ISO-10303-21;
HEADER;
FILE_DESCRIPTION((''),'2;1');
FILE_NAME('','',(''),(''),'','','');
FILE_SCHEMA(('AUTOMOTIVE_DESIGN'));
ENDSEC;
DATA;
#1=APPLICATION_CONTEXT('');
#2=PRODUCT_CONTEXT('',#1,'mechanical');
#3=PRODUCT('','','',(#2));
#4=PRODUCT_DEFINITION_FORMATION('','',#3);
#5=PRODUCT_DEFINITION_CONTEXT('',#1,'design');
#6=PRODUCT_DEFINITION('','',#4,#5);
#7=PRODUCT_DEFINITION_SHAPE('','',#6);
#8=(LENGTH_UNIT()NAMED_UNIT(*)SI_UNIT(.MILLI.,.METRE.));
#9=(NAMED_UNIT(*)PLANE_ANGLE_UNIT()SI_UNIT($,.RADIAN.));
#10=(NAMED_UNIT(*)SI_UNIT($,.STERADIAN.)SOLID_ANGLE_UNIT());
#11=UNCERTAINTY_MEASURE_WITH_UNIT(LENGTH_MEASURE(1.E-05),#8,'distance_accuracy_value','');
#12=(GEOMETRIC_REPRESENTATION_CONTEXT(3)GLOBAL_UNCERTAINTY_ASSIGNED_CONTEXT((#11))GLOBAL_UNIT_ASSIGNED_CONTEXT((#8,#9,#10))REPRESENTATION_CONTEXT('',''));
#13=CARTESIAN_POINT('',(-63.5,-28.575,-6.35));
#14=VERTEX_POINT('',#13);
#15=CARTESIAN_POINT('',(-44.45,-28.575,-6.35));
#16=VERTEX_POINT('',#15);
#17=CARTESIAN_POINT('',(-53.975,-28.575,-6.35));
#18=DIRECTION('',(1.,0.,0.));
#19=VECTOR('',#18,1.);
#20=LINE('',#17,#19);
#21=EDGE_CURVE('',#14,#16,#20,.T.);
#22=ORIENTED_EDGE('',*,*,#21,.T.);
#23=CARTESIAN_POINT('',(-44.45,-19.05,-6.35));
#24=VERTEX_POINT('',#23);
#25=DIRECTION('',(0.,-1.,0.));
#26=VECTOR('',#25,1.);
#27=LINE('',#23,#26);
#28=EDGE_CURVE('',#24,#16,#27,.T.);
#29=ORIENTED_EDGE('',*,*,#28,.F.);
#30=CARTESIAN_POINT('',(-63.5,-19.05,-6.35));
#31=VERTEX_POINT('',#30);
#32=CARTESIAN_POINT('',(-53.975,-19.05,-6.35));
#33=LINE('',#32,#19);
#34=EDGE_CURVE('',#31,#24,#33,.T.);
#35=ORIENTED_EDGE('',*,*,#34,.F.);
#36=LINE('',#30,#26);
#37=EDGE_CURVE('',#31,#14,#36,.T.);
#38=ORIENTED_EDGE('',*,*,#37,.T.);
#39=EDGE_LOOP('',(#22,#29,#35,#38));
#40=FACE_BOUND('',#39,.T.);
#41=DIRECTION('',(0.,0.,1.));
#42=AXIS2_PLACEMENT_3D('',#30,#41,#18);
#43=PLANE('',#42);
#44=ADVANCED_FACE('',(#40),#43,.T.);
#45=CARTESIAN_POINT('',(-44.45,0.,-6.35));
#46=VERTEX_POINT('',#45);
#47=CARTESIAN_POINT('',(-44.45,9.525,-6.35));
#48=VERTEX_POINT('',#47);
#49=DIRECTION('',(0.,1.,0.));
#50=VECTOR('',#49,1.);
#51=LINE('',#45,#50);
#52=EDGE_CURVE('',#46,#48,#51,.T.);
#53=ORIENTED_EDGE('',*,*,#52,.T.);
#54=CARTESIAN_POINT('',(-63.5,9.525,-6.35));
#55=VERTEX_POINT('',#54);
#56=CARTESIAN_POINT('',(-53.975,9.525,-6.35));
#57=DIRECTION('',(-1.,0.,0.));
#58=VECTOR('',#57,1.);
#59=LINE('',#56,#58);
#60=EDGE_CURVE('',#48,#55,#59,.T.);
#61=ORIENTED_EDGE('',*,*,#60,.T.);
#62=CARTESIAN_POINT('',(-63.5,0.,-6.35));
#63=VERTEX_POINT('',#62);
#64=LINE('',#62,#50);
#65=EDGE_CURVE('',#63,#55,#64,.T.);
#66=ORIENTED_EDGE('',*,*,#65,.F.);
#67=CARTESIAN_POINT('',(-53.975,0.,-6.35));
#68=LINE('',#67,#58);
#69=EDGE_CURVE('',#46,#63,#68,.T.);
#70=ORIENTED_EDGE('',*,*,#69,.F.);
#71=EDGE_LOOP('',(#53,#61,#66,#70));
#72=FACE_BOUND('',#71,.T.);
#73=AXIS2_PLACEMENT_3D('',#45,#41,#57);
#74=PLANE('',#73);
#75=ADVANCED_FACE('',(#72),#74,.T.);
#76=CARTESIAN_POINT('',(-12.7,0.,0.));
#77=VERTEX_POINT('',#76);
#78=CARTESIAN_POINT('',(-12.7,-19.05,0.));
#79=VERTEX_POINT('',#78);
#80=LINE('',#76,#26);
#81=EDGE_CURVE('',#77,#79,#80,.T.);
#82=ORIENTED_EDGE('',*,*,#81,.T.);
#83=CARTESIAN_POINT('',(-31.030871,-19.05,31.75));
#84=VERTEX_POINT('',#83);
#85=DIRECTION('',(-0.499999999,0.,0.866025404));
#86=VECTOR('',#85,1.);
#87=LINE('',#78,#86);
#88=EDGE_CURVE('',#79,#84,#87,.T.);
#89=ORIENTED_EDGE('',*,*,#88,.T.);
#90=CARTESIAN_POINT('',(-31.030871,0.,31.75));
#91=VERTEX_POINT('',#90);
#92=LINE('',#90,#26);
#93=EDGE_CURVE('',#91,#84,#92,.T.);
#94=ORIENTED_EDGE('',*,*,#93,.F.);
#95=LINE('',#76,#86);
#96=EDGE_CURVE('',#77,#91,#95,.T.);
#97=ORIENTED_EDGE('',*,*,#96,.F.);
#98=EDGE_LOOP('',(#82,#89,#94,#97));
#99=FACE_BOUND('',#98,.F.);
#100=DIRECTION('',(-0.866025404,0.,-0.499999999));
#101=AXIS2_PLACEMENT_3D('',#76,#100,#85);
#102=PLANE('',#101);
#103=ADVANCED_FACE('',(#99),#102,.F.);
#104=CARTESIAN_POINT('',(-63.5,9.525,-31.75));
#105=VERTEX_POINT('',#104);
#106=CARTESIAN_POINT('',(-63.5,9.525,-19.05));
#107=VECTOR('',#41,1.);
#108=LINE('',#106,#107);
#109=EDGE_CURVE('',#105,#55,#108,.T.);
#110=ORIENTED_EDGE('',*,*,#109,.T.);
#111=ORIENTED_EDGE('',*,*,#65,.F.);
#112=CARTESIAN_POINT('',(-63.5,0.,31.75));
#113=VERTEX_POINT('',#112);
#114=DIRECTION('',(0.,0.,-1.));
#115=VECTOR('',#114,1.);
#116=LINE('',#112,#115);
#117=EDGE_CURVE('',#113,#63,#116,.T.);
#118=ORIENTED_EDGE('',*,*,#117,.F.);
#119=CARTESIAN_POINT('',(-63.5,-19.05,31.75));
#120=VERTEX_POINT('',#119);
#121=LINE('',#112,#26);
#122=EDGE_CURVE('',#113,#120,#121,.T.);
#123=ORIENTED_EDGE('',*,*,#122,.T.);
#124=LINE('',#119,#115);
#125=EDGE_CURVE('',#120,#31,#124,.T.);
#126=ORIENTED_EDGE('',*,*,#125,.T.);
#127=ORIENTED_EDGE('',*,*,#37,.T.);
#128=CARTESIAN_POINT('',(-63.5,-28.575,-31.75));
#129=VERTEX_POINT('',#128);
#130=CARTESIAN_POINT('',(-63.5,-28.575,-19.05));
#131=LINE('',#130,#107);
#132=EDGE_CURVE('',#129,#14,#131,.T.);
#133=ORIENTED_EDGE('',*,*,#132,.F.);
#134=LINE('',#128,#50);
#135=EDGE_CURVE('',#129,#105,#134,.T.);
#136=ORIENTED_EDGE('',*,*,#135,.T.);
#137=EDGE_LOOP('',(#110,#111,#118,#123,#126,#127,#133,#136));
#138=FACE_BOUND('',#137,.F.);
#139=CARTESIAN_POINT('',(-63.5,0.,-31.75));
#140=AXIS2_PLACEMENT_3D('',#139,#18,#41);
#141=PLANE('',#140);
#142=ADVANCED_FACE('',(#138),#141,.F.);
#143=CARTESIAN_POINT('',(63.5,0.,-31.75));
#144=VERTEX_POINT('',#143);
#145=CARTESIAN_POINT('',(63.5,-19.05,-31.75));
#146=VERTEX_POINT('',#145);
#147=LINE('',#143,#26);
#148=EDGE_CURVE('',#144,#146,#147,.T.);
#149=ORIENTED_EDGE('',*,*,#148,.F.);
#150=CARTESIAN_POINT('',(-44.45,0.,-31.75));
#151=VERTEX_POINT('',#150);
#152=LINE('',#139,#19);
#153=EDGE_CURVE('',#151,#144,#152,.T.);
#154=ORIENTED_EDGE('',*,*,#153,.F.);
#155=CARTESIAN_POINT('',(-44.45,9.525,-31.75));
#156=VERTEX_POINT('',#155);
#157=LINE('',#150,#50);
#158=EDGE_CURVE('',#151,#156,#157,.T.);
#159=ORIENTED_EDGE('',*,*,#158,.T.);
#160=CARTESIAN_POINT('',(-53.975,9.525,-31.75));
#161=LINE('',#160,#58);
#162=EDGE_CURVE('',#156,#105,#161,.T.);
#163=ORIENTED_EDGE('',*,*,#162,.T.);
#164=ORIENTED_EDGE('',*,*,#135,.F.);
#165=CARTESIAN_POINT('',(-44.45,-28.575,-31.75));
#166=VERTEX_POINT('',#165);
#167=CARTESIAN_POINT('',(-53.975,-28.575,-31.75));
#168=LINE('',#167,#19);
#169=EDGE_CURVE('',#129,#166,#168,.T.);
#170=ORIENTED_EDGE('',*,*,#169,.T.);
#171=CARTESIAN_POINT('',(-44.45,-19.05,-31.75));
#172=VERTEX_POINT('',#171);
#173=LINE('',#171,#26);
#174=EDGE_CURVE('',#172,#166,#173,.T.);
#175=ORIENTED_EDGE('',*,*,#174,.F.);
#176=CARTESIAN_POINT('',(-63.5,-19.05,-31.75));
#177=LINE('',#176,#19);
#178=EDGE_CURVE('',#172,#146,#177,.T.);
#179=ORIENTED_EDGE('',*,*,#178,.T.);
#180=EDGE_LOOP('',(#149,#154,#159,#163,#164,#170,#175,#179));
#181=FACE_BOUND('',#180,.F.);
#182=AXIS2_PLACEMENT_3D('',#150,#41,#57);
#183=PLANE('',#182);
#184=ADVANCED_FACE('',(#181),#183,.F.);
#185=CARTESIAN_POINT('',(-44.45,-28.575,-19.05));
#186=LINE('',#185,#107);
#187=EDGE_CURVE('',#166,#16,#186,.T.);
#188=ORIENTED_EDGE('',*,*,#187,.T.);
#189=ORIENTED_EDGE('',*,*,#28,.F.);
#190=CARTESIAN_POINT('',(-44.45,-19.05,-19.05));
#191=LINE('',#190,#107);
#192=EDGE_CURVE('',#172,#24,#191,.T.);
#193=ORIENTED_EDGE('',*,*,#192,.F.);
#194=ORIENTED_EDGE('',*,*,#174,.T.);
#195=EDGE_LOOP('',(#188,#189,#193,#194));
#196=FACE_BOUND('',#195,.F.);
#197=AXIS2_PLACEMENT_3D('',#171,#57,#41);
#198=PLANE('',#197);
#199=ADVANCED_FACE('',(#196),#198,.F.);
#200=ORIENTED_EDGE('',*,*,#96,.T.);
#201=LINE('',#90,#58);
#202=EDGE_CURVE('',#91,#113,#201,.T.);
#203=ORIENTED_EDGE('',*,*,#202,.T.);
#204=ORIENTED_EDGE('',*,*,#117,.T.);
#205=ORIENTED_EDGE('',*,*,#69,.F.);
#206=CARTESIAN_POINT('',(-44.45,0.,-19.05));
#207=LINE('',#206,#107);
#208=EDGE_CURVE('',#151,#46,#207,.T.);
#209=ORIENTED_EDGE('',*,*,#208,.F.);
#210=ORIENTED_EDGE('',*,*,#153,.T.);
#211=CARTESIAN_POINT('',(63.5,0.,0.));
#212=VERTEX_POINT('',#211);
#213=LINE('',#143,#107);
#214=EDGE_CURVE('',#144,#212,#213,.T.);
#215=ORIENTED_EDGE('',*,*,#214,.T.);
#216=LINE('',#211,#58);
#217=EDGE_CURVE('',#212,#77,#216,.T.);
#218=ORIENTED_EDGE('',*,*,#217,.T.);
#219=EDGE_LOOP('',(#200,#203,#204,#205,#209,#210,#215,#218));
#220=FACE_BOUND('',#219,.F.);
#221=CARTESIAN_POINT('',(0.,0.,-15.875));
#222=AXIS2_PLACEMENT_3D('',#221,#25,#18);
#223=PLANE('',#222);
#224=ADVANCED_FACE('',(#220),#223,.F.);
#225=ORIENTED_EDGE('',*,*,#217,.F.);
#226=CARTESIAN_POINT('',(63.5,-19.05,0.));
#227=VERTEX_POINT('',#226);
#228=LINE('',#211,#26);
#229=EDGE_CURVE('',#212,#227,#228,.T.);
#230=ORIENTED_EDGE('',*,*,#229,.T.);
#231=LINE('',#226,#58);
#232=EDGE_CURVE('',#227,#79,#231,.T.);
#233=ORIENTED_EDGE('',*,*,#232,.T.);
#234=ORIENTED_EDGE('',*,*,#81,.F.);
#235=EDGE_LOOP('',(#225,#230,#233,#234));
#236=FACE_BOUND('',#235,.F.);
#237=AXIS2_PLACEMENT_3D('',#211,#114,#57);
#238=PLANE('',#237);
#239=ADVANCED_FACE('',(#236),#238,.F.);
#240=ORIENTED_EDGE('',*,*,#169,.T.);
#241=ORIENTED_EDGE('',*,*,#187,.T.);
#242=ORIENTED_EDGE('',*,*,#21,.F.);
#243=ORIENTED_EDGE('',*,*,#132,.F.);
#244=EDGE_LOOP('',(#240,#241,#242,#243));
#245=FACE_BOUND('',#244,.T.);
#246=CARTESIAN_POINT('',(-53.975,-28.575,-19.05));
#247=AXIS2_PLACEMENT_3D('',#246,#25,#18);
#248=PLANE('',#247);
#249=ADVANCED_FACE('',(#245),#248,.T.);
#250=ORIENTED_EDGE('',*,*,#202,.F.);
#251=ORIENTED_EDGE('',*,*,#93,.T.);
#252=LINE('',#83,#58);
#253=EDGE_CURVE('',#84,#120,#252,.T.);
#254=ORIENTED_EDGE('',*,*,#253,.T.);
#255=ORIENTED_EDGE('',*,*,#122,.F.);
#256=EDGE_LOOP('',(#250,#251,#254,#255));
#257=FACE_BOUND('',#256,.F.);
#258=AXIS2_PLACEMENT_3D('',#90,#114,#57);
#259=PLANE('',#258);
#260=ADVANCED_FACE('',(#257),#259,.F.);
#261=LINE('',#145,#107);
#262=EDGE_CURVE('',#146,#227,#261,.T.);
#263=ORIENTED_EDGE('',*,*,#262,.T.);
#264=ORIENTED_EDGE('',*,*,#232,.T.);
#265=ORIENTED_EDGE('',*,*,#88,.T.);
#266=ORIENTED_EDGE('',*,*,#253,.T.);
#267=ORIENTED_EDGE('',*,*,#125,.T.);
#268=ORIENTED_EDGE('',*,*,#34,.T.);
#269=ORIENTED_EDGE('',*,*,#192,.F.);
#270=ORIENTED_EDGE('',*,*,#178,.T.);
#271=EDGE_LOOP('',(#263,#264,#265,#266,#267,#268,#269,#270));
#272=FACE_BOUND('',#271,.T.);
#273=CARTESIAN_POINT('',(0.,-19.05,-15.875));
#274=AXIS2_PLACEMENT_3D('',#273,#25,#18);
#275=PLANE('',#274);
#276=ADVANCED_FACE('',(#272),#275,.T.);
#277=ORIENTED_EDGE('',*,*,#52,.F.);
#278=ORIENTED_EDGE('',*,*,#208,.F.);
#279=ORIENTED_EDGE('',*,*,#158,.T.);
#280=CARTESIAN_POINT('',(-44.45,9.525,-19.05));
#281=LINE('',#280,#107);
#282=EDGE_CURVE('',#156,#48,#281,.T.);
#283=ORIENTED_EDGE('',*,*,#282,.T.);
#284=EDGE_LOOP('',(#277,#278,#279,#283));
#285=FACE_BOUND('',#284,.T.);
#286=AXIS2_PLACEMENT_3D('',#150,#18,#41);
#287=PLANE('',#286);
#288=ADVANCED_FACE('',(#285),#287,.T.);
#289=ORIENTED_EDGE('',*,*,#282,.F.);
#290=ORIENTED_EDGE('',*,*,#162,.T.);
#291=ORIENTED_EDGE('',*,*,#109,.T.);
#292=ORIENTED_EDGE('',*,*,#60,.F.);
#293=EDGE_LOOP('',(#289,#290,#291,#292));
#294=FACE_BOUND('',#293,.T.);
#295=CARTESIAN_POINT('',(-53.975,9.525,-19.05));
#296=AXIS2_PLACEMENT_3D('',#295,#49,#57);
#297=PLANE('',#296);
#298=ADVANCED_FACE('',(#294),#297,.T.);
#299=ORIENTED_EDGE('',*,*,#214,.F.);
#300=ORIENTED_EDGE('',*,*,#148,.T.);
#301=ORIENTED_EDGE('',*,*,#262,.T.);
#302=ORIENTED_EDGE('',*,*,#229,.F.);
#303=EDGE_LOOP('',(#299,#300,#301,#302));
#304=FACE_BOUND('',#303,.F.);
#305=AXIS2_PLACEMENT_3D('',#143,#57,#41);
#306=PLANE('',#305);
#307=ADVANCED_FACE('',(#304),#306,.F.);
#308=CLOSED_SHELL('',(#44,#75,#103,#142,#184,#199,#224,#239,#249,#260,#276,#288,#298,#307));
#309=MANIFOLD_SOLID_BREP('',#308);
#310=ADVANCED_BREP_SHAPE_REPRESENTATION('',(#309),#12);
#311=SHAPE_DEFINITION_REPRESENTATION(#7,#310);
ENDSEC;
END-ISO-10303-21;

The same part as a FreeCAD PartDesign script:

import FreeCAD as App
import Part
import Sketcher

V = App.Vector
Q = App.Units.Quantity

doc = App.newDocument("Part")
params = doc.addObject("Spreadsheet::Sheet", "Params")
for row, (alias, value) in enumerate([
    ("sketch1_width", "5 in"),
    ("sketch1_width2", "3 in"),
    ("sketch1_height", "2.5 in"),
    ("pad1_length", "0.75 in"),
    ("sketch2_height", "1 in"),
    ("sketch2_width", "0.75 in"),
    ("pad2_length", "0.375 in"),
    ("sketch3_height", "1 in"),
    ("sketch3_width", "0.75 in"),
    ("pad3_length", "0.375 in"),
], start=1):
    params.set(f"A{row}", alias)
    params.set(f"B{row}", "=" + value)
    params.setAlias(f"B{row}", alias)

body = doc.addObject("PartDesign::Body", "Body")

sketch1 = body.newObject("Sketcher::SketchObject", "Sketch")
sketch1.AttachmentSupport = (doc.getObject("XZ_Plane"), [""])
sketch1.MapMode = "FlatFace"
sketch1.addGeometry(Part.LineSegment(V(-64, -32, 0), V(64, -32, 0)), False)
sketch1.addGeometry(Part.LineSegment(V(64, -32, 0), V(64, 0, 0)), False)
sketch1.addGeometry(Part.LineSegment(V(64, 0, 0), V(-13, 0, 0)), False)
sketch1.addGeometry(Part.LineSegment(V(-13, 0, 0), V(-31, 32, 0)), False)
sketch1.addGeometry(Part.LineSegment(V(-31, 32, 0), V(-64, 32, 0)), False)
sketch1.addGeometry(Part.LineSegment(V(-64, 32, 0), V(-64, -32, 0)), False)
sketch1.addConstraint(Sketcher.Constraint("Coincident", 0, 2, 1, 1))
sketch1.addConstraint(Sketcher.Constraint("Coincident", 1, 2, 2, 1))
sketch1.addConstraint(Sketcher.Constraint("Coincident", 2, 2, 3, 1))
sketch1.addConstraint(Sketcher.Constraint("Coincident", 3, 2, 4, 1))
sketch1.addConstraint(Sketcher.Constraint("Coincident", 4, 2, 5, 1))
sketch1.addConstraint(Sketcher.Constraint("Coincident", 5, 2, 0, 1))
sketch1.addConstraint(Sketcher.Constraint("Horizontal", 0))
sketch1.addConstraint(Sketcher.Constraint("Vertical", 1))
sketch1.addConstraint(Sketcher.Constraint("Horizontal", 2))
sketch1.addConstraint(Sketcher.Constraint("Horizontal", 4))
sketch1.addConstraint(Sketcher.Constraint("Vertical", 5))
sketch1.addConstraint(Sketcher.Constraint("Symmetric", 0, 2, 4, 2, -1, 1))
sketch1.addConstraint(Sketcher.Constraint("PointOnObject", 1, 2, -1))
sketch1.addConstraint(Sketcher.Constraint("DistanceX", 0, 1, 0, 2, Q("5 in")))
sketch1.addConstraint(Sketcher.Constraint("DistanceX", 2, 2, 2, 1, Q("3 in")))
sketch1.addConstraint(Sketcher.Constraint("DistanceY", 5, 2, 5, 1, Q("2.5 in")))
sketch1.addConstraint(Sketcher.Constraint("Angle", 3, Q("120 deg")))
sketch1.setExpression("Constraints[13]", "Params.sketch1_width")
sketch1.setExpression("Constraints[14]", "Params.sketch1_width2")
sketch1.setExpression("Constraints[15]", "Params.sketch1_height")
pad1 = body.newObject("PartDesign::Pad", "Pad")
pad1.Profile = sketch1
pad1.setExpression("Length", "Params.pad1_length")

sketch2 = body.newObject("Sketcher::SketchObject", "Sketch001")
sketch2.AttachmentSupport = (doc.getObject("XZ_Plane"), [""])
sketch2.MapMode = "FlatFace"
sketch2.AttachmentOffset = App.Placement(V(0, 0, 0.75 * 25.4), App.Rotation())
sketch2.addGeometry(Part.LineSegment(V(-64, -6, 0), V(-64, -32, 0)), False)
sketch2.addGeometry(Part.LineSegment(V(-64, -32, 0), V(-44, -32, 0)), False)
sketch2.addGeometry(Part.LineSegment(V(-44, -32, 0), V(-44, -6, 0)), False)
sketch2.addGeometry(Part.LineSegment(V(-44, -6, 0), V(-64, -6, 0)), False)
sketch2.addConstraint(Sketcher.Constraint("Coincident", 0, 2, 1, 1))
sketch2.addConstraint(Sketcher.Constraint("Coincident", 1, 2, 2, 1))
sketch2.addConstraint(Sketcher.Constraint("Coincident", 2, 2, 3, 1))
sketch2.addConstraint(Sketcher.Constraint("Coincident", 3, 2, 0, 1))
sketch2.addConstraint(Sketcher.Constraint("Vertical", 0))
sketch2.addConstraint(Sketcher.Constraint("Horizontal", 1))
sketch2.addConstraint(Sketcher.Constraint("Vertical", 2))
sketch2.addConstraint(Sketcher.Constraint("Horizontal", 3))
sketch2.addConstraint(Sketcher.Constraint("DistanceY", 0, 2, 0, 1, Q("1 in")))
sketch2.addConstraint(Sketcher.Constraint("DistanceX", 1, 1, 1, 2, Q("0.75 in")))
sketch2.addConstraint(Sketcher.Constraint("DistanceX", 0, 2, -1, 1, Q("2.5 in")))
sketch2.addConstraint(Sketcher.Constraint("DistanceY", 0, 2, -1, 1, Q("1.25 in")))
sketch2.setExpression("Constraints[8]", "Params.sketch2_height")
sketch2.setExpression("Constraints[9]", "Params.sketch2_width")
pad2 = body.newObject("PartDesign::Pad", "Pad001")
pad2.Profile = sketch2
pad2.setExpression("Length", "Params.pad2_length")

sketch3 = body.newObject("Sketcher::SketchObject", "Sketch002")
sketch3.AttachmentSupport = (doc.getObject("XZ_Plane"), [""])
sketch3.MapMode = "FlatFace"
sketch3.addGeometry(Part.LineSegment(V(-44, -6, 0), V(-44, -32, 0)), False)
sketch3.addGeometry(Part.LineSegment(V(-44, -32, 0), V(-64, -32, 0)), False)
sketch3.addGeometry(Part.LineSegment(V(-64, -32, 0), V(-64, -6, 0)), False)
sketch3.addGeometry(Part.LineSegment(V(-64, -6, 0), V(-44, -6, 0)), False)
sketch3.addConstraint(Sketcher.Constraint("Coincident", 0, 2, 1, 1))
sketch3.addConstraint(Sketcher.Constraint("Coincident", 1, 2, 2, 1))
sketch3.addConstraint(Sketcher.Constraint("Coincident", 2, 2, 3, 1))
sketch3.addConstraint(Sketcher.Constraint("Coincident", 3, 2, 0, 1))
sketch3.addConstraint(Sketcher.Constraint("Vertical", 0))
sketch3.addConstraint(Sketcher.Constraint("Horizontal", 1))
sketch3.addConstraint(Sketcher.Constraint("Vertical", 2))
sketch3.addConstraint(Sketcher.Constraint("Horizontal", 3))
sketch3.addConstraint(Sketcher.Constraint("DistanceY", 0, 2, 0, 1, Q("1 in")))
sketch3.addConstraint(Sketcher.Constraint("DistanceX", 1, 2, 1, 1, Q("0.75 in")))
sketch3.addConstraint(Sketcher.Constraint("DistanceX", 1, 2, -1, 1, Q("2.5 in")))
sketch3.addConstraint(Sketcher.Constraint("DistanceY", 0, 2, -1, 1, Q("1.25 in")))
sketch3.setExpression("Constraints[8]", "Params.sketch3_height")
sketch3.setExpression("Constraints[9]", "Params.sketch3_width")
pad3 = body.newObject("PartDesign::Pad", "Pad002")
pad3.Profile = sketch3
pad3.setExpression("Length", "Params.pad3_length")
pad3.Reversed = True

doc.recompute()
